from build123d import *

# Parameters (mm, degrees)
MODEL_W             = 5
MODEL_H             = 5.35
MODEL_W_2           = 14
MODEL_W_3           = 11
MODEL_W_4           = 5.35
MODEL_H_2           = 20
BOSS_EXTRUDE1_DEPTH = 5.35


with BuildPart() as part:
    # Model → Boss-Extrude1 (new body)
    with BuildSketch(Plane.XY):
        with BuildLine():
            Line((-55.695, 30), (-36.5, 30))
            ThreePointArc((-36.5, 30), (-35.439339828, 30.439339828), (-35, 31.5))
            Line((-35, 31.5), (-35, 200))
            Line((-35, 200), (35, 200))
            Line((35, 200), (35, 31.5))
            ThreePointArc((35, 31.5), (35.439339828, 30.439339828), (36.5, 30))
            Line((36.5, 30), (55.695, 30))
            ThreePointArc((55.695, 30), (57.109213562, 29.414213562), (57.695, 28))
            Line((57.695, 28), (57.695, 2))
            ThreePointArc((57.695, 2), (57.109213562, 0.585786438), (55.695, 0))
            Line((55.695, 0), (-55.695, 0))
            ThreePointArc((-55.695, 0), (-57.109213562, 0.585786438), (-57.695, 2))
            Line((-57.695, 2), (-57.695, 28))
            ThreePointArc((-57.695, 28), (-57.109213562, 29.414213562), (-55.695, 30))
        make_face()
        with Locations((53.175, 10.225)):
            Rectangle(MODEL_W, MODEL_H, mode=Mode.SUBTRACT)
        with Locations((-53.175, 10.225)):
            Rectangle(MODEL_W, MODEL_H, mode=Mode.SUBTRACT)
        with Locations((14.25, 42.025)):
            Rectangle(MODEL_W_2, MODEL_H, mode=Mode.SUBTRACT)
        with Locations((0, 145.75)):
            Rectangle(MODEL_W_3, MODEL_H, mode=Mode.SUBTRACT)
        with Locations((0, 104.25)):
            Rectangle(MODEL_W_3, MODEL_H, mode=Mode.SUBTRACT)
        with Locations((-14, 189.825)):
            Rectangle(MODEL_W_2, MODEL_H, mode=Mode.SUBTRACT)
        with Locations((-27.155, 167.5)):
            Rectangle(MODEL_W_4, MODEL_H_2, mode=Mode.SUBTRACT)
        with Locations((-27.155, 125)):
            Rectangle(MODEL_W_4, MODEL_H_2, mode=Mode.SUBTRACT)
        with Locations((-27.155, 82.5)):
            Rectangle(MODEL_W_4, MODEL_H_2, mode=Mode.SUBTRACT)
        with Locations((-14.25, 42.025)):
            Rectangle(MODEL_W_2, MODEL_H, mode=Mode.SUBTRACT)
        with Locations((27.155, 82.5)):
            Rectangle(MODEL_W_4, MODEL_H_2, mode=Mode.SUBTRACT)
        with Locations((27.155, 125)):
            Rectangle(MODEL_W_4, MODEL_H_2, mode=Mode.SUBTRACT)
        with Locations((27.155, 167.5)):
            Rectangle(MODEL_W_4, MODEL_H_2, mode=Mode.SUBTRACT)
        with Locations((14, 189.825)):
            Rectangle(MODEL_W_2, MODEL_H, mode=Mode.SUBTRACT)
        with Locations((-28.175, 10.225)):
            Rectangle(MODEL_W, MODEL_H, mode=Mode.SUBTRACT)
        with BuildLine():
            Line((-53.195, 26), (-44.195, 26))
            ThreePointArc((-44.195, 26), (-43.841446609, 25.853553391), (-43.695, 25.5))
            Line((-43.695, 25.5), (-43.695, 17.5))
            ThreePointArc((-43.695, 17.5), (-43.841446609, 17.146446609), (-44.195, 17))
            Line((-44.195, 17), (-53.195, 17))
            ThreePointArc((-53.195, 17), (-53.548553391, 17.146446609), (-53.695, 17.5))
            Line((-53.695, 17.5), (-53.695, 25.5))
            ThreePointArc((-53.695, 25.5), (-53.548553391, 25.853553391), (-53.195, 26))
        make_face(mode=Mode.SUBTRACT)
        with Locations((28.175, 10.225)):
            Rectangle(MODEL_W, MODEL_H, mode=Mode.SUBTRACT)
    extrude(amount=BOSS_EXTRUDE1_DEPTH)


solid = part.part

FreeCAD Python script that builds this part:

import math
import FreeCAD as App
import Part
import Sketcher
from FreeCAD import Vector


def add_polygon(sketch, points):
    """Adds a closed chain of lines whose ends are joined by coincident constraints."""
    first, n = sketch.GeometryCount, len(points)
    for a, b in zip(points, points[1:] + points[:1]):
        sketch.addGeometry(Part.LineSegment(App.Vector(*a, 0), App.Vector(*b, 0)), False)
    for i in range(n):
        sketch.addConstraint(Sketcher.Constraint("Coincident", first + i, 2, first + (i + 1) % n, 1))

doc = App.newDocument("Part")
body = doc.addObject("PartDesign::Body", "Body")

sketch1 = body.newObject("Sketcher::SketchObject", "Sketch")
sketch1.AttachmentSupport = (doc.getObject("XY_Plane"), [""])
sketch1.MapMode = "FlatFace"
sketch1.addGeometry(Part.LineSegment(Vector(-36.5, 30, 0), Vector(-55.7, 30, 0)), False)
sketch1.addGeometry(Part.ArcOfCircle(Part.Circle(Vector(-55.69, 28, 0), Vector(0, 0, 1), 2), math.radians(90), math.radians(180)), False)
sketch1.addGeometry(Part.LineSegment(Vector(-57.7, 28, 0), Vector(-57.7, 2, 0)), False)
sketch1.addGeometry(Part.ArcOfCircle(Part.Circle(Vector(-55.69, 2, 0), Vector(0, 0, 1), 2), math.radians(-180), math.radians(-90)), False)
sketch1.addGeometry(Part.LineSegment(Vector(-55.7, 0, 0), Vector(55.7, 0, 0)), False)
sketch1.addGeometry(Part.ArcOfCircle(Part.Circle(Vector(55.69, 2, 0), Vector(0, 0, 1), 2), math.radians(-90), math.radians(0)), False)
sketch1.addGeometry(Part.LineSegment(Vector(57.7, 2, 0), Vector(57.7, 28, 0)), False)
sketch1.addGeometry(Part.ArcOfCircle(Part.Circle(Vector(55.69, 28, 0), Vector(0, 0, 1), 2), math.radians(0), math.radians(90)), False)
sketch1.addGeometry(Part.LineSegment(Vector(55.7, 30, 0), Vector(36.5, 30, 0)), False)
sketch1.addGeometry(Part.ArcOfCircle(Part.Circle(Vector(36.5, 31.5, 0), Vector(0, 0, 1), 1.5), math.radians(180), math.radians(270)), False)
sketch1.addGeometry(Part.LineSegment(Vector(35, 31.5, 0), Vector(35, 200, 0)), False)
sketch1.addGeometry(Part.LineSegment(Vector(35, 200, 0), Vector(-35, 200, 0)), False)
sketch1.addGeometry(Part.LineSegment(Vector(-35, 200, 0), Vector(-35, 31.5, 0)), False)
sketch1.addGeometry(Part.ArcOfCircle(Part.Circle(Vector(-36.5, 31.5, 0), Vector(0, 0, 1), 1.5), math.radians(-90), math.radians(0)), False)
add_polygon(sketch1, [(50.67, 7.55), (50.67, 12.9), (55.67, 12.9), (55.67, 7.55)])
add_polygon(sketch1, [(25.68, 7.55), (25.68, 12.9), (30.68, 12.9), (30.68, 7.55)])
add_polygon(sketch1, [(7.25, 39.35), (7.25, 44.7), (21.25, 44.7), (21.25, 39.35)])
add_polygon(sketch1, [(24.48, 72.5), (24.48, 92.5), (29.83, 92.5), (29.83, 72.5)])
add_polygon(sketch1, [(-21.25, 39.35), (-21.25, 44.7), (-7.25, 44.7), (-7.25, 39.35)])
add_polygon(sketch1, [(-30.68, 7.55), (-30.68, 12.9), (-25.68, 12.9), (-25.68, 7.55)])
add_polygon(sketch1, [(-55.67, 7.55), (-55.67, 12.9), (-50.67, 12.9), (-50.67, 7.55)])
sketch1.addGeometry(Part.LineSegment(Vector(-53.2, 26, 0), Vector(-44.2, 26, 0)), False)
sketch1.addGeometry(Part.ArcOfCircle(Part.Circle(Vector(-44.19, 25.5, 0), Vector(0, 0, 1), 0.5), math.radians(0), math.radians(90)), False)
sketch1.addGeometry(Part.LineSegment(Vector(-43.7, 25.5, 0), Vector(-43.7, 17.5, 0)), False)
sketch1.addGeometry(Part.ArcOfCircle(Part.Circle(Vector(-44.19, 17.5, 0), Vector(0, 0, 1), 0.5), math.radians(-90), math.radians(0)), False)
sketch1.addGeometry(Part.LineSegment(Vector(-44.2, 17, 0), Vector(-53.2, 17, 0)), False)
sketch1.addGeometry(Part.ArcOfCircle(Part.Circle(Vector(-53.2, 17.5, 0), Vector(0, 0, 1), 0.5), math.radians(180), math.radians(270)), False)
sketch1.addGeometry(Part.LineSegment(Vector(-53.7, 17.5, 0), Vector(-53.7, 25.5, 0)), False)
sketch1.addGeometry(Part.ArcOfCircle(Part.Circle(Vector(-53.2, 25.5, 0), Vector(0, 0, 1), 0.5), math.radians(90), math.radians(180)), False)
add_polygon(sketch1, [(-29.83, 72.5), (-29.83, 92.5), (-24.48, 92.5), (-24.48, 72.5)])
add_polygon(sketch1, [(24.48, 115), (24.48, 135), (29.83, 135), (29.83, 115)])
add_polygon(sketch1, [(24.48, 157.5), (24.48, 177.5), (29.83, 177.5), (29.83, 157.5)])
add_polygon(sketch1, [(7, 187.15), (7, 192.5), (21, 192.5), (21, 187.15)])
add_polygon(sketch1, [(-5.5, 101.58), (-5.5, 106.92), (5.5, 106.92), (5.5, 101.58)])
add_polygon(sketch1, [(-5.5, 143.07), (-5.5, 148.43), (5.5, 148.43), (5.5, 143.07)])
add_polygon(sketch1, [(-29.83, 115), (-29.83, 135), (-24.48, 135), (-24.48, 115)])
add_polygon(sketch1, [(-29.83, 157.5), (-29.83, 177.5), (-24.48, 177.5), (-24.48, 157.5)])
add_polygon(sketch1, [(-21, 187.15), (-21, 192.5), (-7, 192.5), (-7, 187.15)])
sketch1.addConstraint(Sketcher.Constraint("Tangent", 0, 2, 1, 1))
sketch1.addConstraint(Sketcher.Constraint("Tangent", 1, 2, 2, 1))
sketch1.addConstraint(Sketcher.Constraint("Tangent", 2, 2, 3, 1))
sketch1.addConstraint(Sketcher.Constraint("Tangent", 3, 2, 4, 1))
sketch1.addConstraint(Sketcher.Constraint("Tangent", 4, 2, 5, 1))
sketch1.addConstraint(Sketcher.Constraint("Tangent", 5, 2, 6, 1))
sketch1.addConstraint(Sketcher.Constraint("Tangent", 6, 2, 7, 1))
sketch1.addConstraint(Sketcher.Constraint("Tangent", 7, 2, 8, 1))
sketch1.addConstraint(Sketcher.Constraint("Tangent", 8, 2, 9, 2))
sketch1.addConstraint(Sketcher.Constraint("Tangent", 9, 1, 10, 1))
sketch1.addConstraint(Sketcher.Constraint("Coincident", 10, 2, 11, 1))
sketch1.addConstraint(Sketcher.Constraint("Coincident", 11, 2, 12, 1))
sketch1.addConstraint(Sketcher.Constraint("Tangent", 12, 2, 13, 2))
sketch1.addConstraint(Sketcher.Constraint("Tangent", 13, 1, 0, 1))
sketch1.addConstraint(Sketcher.Constraint("Tangent", 42, 2, 43, 2))
sketch1.addConstraint(Sketcher.Constraint("Tangent", 43, 1, 44, 1))
sketch1.addConstraint(Sketcher.Constraint("Tangent", 44, 2, 45, 2))
sketch1.addConstraint(Sketcher.Constraint("Tangent", 45, 1, 46, 1))
sketch1.addConstraint(Sketcher.Constraint("Tangent", 46, 2, 47, 2))
sketch1.addConstraint(Sketcher.Constraint("Tangent", 47, 1, 48, 1))
sketch1.addConstraint(Sketcher.Constraint("Tangent", 48, 2, 49, 2))
sketch1.addConstraint(Sketcher.Constraint("Tangent", 49, 1, 42, 1))
sketch1.addConstraint(Sketcher.Constraint("Horizontal", 0))
sketch1.addConstraint(Sketcher.Constraint("Vertical", 2))
sketch1.addConstraint(Sketcher.Constraint("Horizontal", 4))
sketch1.addConstraint(Sketcher.Constraint("Vertical", 6))
sketch1.addConstraint(Sketcher.Constraint("Horizontal", 8))
sketch1.addConstraint(Sketcher.Constraint("Vertical", 10))
sketch1.addConstraint(Sketcher.Constraint("Horizontal", 11))
sketch1.addConstraint(Sketcher.Constraint("Vertical", 12))
sketch1.addConstraint(Sketcher.Constraint("Vertical", 14))
sketch1.addConstraint(Sketcher.Constraint("Horizontal", 15))
sketch1.addConstraint(Sketcher.Constraint("Vertical", 16))
sketch1.addConstraint(Sketcher.Constraint("Horizontal", 17))
sketch1.addConstraint(Sketcher.Constraint("Vertical", 18))
sketch1.addConstraint(Sketcher.Constraint("Horizontal", 19))
sketch1.addConstraint(Sketcher.Constraint("Vertical", 20))
sketch1.addConstraint(Sketcher.Constraint("Horizontal", 21))
sketch1.addConstraint(Sketcher.Constraint("Vertical", 22))
sketch1.addConstraint(Sketcher.Constraint("Horizontal", 23))
sketch1.addConstraint(Sketcher.Constraint("Vertical", 24))
sketch1.addConstraint(Sketcher.Constraint("Horizontal", 25))
sketch1.addConstraint(Sketcher.Constraint("Vertical", 26))
sketch1.addConstraint(Sketcher.Constraint("Horizontal", 27))
sketch1.addConstraint(Sketcher.Constraint("Vertical", 28))
sketch1.addConstraint(Sketcher.Constraint("Horizontal", 29))
sketch1.addConstraint(Sketcher.Constraint("Vertical", 30))
sketch1.addConstraint(Sketcher.Constraint("Horizontal", 31))
sketch1.addConstraint(Sketcher.Constraint("Vertical", 32))
sketch1.addConstraint(Sketcher.Constraint("Horizontal", 33))
sketch1.addConstraint(Sketcher.Constraint("Vertical", 34))
sketch1.addConstraint(Sketcher.Constraint("Horizontal", 35))
sketch1.addConstraint(Sketcher.Constraint("Vertical", 36))
sketch1.addConstraint(Sketcher.Constraint("Horizontal", 37))
sketch1.addConstraint(Sketcher.Constraint("Vertical", 38))
sketch1.addConstraint(Sketcher.Constraint("Horizontal", 39))
sketch1.addConstraint(Sketcher.Constraint("Vertical", 40))
sketch1.addConstraint(Sketcher.Constraint("Horizontal", 41))
sketch1.addConstraint(Sketcher.Constraint("Horizontal", 42))
sketch1.addConstraint(Sketcher.Constraint("Vertical", 44))
sketch1.addConstraint(Sketcher.Constraint("Horizontal", 46))
sketch1.addConstraint(Sketcher.Constraint("Vertical", 48))
sketch1.addConstraint(Sketcher.Constraint("Vertical", 50))
sketch1.addConstraint(Sketcher.Constraint("Horizontal", 51))
sketch1.addConstraint(Sketcher.Constraint("Vertical", 52))
sketch1.addConstraint(Sketcher.Constraint("Horizontal", 53))
sketch1.addConstraint(Sketcher.Constraint("Vertical", 54))
sketch1.addConstraint(Sketcher.Constraint("Horizontal", 55))
sketch1.addConstraint(Sketcher.Constraint("Vertical", 56))
sketch1.addConstraint(Sketcher.Constraint("Horizontal", 57))
sketch1.addConstraint(Sketcher.Constraint("Vertical", 58))
sketch1.addConstraint(Sketcher.Constraint("Horizontal", 59))
sketch1.addConstraint(Sketcher.Constraint("Vertical", 60))
sketch1.addConstraint(Sketcher.Constraint("Horizontal", 61))
sketch1.addConstraint(Sketcher.Constraint("Vertical", 62))
sketch1.addConstraint(Sketcher.Constraint("Horizontal", 63))
sketch1.addConstraint(Sketcher.Constraint("Vertical", 64))
sketch1.addConstraint(Sketcher.Constraint("Horizontal", 65))
sketch1.addConstraint(Sketcher.Constraint("Vertical", 66))
sketch1.addConstraint(Sketcher.Constraint("Horizontal", 67))
sketch1.addConstraint(Sketcher.Constraint("Vertical", 68))
sketch1.addConstraint(Sketcher.Constraint("Horizontal", 69))
sketch1.addConstraint(Sketcher.Constraint("Vertical", 70))
sketch1.addConstraint(Sketcher.Constraint("Horizontal", 71))
sketch1.addConstraint(Sketcher.Constraint("Vertical", 72))
sketch1.addConstraint(Sketcher.Constraint("Horizontal", 73))
sketch1.addConstraint(Sketcher.Constraint("Vertical", 74))
sketch1.addConstraint(Sketcher.Constraint("Horizontal", 75))
sketch1.addConstraint(Sketcher.Constraint("Vertical", 76))
sketch1.addConstraint(Sketcher.Constraint("Horizontal", 77))
sketch1.addConstraint(Sketcher.Constraint("Vertical", 78))
sketch1.addConstraint(Sketcher.Constraint("Horizontal", 79))
sketch1.addConstraint(Sketcher.Constraint("Vertical", 80))
sketch1.addConstraint(Sketcher.Constraint("Horizontal", 81))
sketch1.addConstraint(Sketcher.Constraint("Vertical", 82))
sketch1.addConstraint(Sketcher.Constraint("Horizontal", 83))
sketch1.addConstraint(Sketcher.Constraint("Vertical", 84))
sketch1.addConstraint(Sketcher.Constraint("Horizontal", 85))
sketch1.addConstraint(Sketcher.Constraint("Equal", 1, 3))
sketch1.addConstraint(Sketcher.Constraint("Equal", 3, 5))
sketch1.addConstraint(Sketcher.Constraint("Equal", 5, 7))
sketch1.addConstraint(Sketcher.Constraint("Equal", 9, 13))
sketch1.addConstraint(Sketcher.Constraint("Equal", 43, 45))
sketch1.addConstraint(Sketcher.Constraint("Equal", 45, 47))
sketch1.addConstraint(Sketcher.Constraint("Equal", 47, 49))
sketch1.addConstraint(Sketcher.Constraint("Symmetric", 3, 2, 4, 2, -1, 1))
sketch1.addConstraint(Sketcher.Constraint("Symmetric", 9, 3, 13, 3, -2))
sketch1.addConstraint(Sketcher.Constraint("Symmetric", 23, 2, 30, 2, -2))
sketch1.addConstraint(Sketcher.Constraint("Symmetric", 25, 2, 32, 2, -2))
sketch1.addConstraint(Sketcher.Constraint("Symmetric", 19, 2, 34, 2, -2))
sketch1.addConstraint(Sketcher.Constraint("Symmetric", 21, 2, 36, 2, -2))
sketch1.addConstraint(Sketcher.Constraint("Symmetric", 15, 2, 38, 2, -2))
sketch1.addConstraint(Sketcher.Constraint("Symmetric", 17, 2, 40, 2, -2))
sketch1.addConstraint(Sketcher.Constraint("Symmetric", 27, 2, 50, 2, -2))
sketch1.addConstraint(Sketcher.Constraint("Symmetric", 29, 2, 52, 2, -2))
sketch1.addConstraint(Sketcher.Constraint("Symmetric", 55, 2, 74, 2, -2))
sketch1.addConstraint(Sketcher.Constraint("Symmetric", 57, 2, 76, 2, -2))
sketch1.addConstraint(Sketcher.Constraint("Symmetric", 59, 2, 78, 2, -2))
sketch1.addConstraint(Sketcher.Constraint("Symmetric", 61, 2, 80, 2, -2))
sketch1.addConstraint(Sketcher.Constraint("Symmetric", 63, 2, 82, 2, -2))
sketch1.addConstraint(Sketcher.Constraint("Symmetric", 65, 2, 84, 2, -2))
sketch1.addConstraint(Sketcher.Constraint("Horizontal", 15, 2, 18, 2))
sketch1.addConstraint(Sketcher.Constraint("Horizontal", 17, 2, 20, 2))
sketch1.addConstraint(Sketcher.Constraint("Vertical", 29, 2, 54, 2))
sketch1.addConstraint(Sketcher.Constraint("Vertical", 28, 2, 55, 2))
sketch1.addConstraint(Sketcher.Constraint("Vertical", 57, 2, 58, 2))
sketch1.addConstraint(Sketcher.Constraint("Vertical", 56, 2, 59, 2))
sketch1.addConstraint(Sketcher.Constraint("Vertical", 69, 2, 70, 2))
sketch1.addConstraint(Sketcher.Constraint("Vertical", 68, 2, 71, 2))
sketch1.addConstraint(Sketcher.Constraint("Equal", 17, 19))
sketch1.addConstraint(Sketcher.Constraint("Equal", 33, 63))
sketch1.addConstraint(Sketcher.Constraint("Equal", 81, 14))
sketch1.addConstraint(Sketcher.Constraint("Equal", 20, 22))
sketch1.addConstraint(Sketcher.Constraint("Equal", 52, 54))
sketch1.addConstraint(Sketcher.Constraint("Equal", 56, 58))
sketch1.addConstraint(Sketcher.Constraint("Equal", 40, 62))
sketch1.addConstraint(Sketcher.Constraint("Equal", 64, 66))
sketch1.addConstraint(Sketcher.Constraint("Equal", 68, 70))
sketch1.addConstraint(Sketcher.Constraint("Radius", 1, 2.0))
sketch1.addConstraint(Sketcher.Constraint("Radius", 9, 1.5))
sketch1.addConstraint(Sketcher.Constraint("Radius", 43, 0.5))
sketch1.addConstraint(Sketcher.Constraint("DistanceX", 11, 2, 11, 1, 70.0))
sketch1.addConstraint(Sketcher.Constraint("DistanceX", 15, 1, 15, 2, 5.0))
sketch1.addConstraint(Sketcher.Constraint("DistanceX", 23, 1, 23, 2, 14.0))
sketch1.addConstraint(Sketcher.Constraint("DistanceX", 42, 1, 42, 2, 9.0))
sketch1.addConstraint(Sketcher.Constraint("DistanceX", 67, 1, 67, 2, 11.0))
sketch1.addConstraint(Sketcher.Constraint("DistanceY", 2, 2, 2, 1, 26.0))
sketch1.addConstraint(Sketcher.Constraint("DistanceY", 26, 1, 26, 2, 20.0))
sketch1.addConstraint(Sketcher.Constraint("DistanceY", 44, 2, 44, 1, 8.0))
sketch1.addConstraint(Sketcher.Constraint("DistanceY", 10, 1, 10, 2, 168.5))
sketch1.addConstraint(Sketcher.Constraint("DistanceY", -1, 1, 42, 2, 26.0))
sketch1.addConstraint(Sketcher.Constraint("DistanceY", -1, 1, 54, 2, 135.0))
sketch1.addConstraint(Sketcher.Constraint("DistanceX", -1, 1, 62, 2, 7.0))
sketch1.addConstraint(Sketcher.Constraint("DistanceX", 4, 1, 4, 2, 111.39))
sketch1.addConstraint(Sketcher.Constraint("DistanceX", 27, 1, 27, 2, 5.35))
sketch1.addConstraint(Sketcher.Constraint("DistanceY", -1, 1, 14, 2, 12.9))
sketch1.addConstraint(Sketcher.Constraint("DistanceY", -1, 1, 22, 2, 44.7))
sketch1.addConstraint(Sketcher.Constraint("DistanceY", -1, 1, 26, 2, 92.5))
sketch1.addConstraint(Sketcher.Constraint("DistanceY", -1, 1, 58, 2, 177.5))
sketch1.addConstraint(Sketcher.Constraint("DistanceY", -1, 1, 62, 2, 192.5))
sketch1.addConstraint(Sketcher.Constraint("DistanceX", 66, 2, -1, 1, 5.5))
sketch1.addConstraint(Sketcher.Constraint("DistanceX", -1, 1, 22, 2, 7.25))
sketch1.addConstraint(Sketcher.Constraint("DistanceX", -1, 1, 26, 2, 24.48))
sketch1.addConstraint(Sketcher.Constraint("DistanceX", 43, 3, -1, 1, 44.195))
sketch1.addConstraint(Sketcher.Constraint("DistanceX", -1, 1, 14, 2, 50.675))
sketch1.addConstraint(Sketcher.Constraint("DistanceX", -1, 1, 18, 2, 25.675))
sketch1.addConstraint(Sketcher.Constraint("DistanceY", -1, 1, 66, 2, 106.925))
sketch1.addConstraint(Sketcher.Constraint("DistanceY", -1, 1, 70, 2, 148.425))
pad1 = body.newObject("PartDesign::Pad", "Pad")
pad1.Profile = sketch1
pad1.Length = 5.35

doc.recompute()
